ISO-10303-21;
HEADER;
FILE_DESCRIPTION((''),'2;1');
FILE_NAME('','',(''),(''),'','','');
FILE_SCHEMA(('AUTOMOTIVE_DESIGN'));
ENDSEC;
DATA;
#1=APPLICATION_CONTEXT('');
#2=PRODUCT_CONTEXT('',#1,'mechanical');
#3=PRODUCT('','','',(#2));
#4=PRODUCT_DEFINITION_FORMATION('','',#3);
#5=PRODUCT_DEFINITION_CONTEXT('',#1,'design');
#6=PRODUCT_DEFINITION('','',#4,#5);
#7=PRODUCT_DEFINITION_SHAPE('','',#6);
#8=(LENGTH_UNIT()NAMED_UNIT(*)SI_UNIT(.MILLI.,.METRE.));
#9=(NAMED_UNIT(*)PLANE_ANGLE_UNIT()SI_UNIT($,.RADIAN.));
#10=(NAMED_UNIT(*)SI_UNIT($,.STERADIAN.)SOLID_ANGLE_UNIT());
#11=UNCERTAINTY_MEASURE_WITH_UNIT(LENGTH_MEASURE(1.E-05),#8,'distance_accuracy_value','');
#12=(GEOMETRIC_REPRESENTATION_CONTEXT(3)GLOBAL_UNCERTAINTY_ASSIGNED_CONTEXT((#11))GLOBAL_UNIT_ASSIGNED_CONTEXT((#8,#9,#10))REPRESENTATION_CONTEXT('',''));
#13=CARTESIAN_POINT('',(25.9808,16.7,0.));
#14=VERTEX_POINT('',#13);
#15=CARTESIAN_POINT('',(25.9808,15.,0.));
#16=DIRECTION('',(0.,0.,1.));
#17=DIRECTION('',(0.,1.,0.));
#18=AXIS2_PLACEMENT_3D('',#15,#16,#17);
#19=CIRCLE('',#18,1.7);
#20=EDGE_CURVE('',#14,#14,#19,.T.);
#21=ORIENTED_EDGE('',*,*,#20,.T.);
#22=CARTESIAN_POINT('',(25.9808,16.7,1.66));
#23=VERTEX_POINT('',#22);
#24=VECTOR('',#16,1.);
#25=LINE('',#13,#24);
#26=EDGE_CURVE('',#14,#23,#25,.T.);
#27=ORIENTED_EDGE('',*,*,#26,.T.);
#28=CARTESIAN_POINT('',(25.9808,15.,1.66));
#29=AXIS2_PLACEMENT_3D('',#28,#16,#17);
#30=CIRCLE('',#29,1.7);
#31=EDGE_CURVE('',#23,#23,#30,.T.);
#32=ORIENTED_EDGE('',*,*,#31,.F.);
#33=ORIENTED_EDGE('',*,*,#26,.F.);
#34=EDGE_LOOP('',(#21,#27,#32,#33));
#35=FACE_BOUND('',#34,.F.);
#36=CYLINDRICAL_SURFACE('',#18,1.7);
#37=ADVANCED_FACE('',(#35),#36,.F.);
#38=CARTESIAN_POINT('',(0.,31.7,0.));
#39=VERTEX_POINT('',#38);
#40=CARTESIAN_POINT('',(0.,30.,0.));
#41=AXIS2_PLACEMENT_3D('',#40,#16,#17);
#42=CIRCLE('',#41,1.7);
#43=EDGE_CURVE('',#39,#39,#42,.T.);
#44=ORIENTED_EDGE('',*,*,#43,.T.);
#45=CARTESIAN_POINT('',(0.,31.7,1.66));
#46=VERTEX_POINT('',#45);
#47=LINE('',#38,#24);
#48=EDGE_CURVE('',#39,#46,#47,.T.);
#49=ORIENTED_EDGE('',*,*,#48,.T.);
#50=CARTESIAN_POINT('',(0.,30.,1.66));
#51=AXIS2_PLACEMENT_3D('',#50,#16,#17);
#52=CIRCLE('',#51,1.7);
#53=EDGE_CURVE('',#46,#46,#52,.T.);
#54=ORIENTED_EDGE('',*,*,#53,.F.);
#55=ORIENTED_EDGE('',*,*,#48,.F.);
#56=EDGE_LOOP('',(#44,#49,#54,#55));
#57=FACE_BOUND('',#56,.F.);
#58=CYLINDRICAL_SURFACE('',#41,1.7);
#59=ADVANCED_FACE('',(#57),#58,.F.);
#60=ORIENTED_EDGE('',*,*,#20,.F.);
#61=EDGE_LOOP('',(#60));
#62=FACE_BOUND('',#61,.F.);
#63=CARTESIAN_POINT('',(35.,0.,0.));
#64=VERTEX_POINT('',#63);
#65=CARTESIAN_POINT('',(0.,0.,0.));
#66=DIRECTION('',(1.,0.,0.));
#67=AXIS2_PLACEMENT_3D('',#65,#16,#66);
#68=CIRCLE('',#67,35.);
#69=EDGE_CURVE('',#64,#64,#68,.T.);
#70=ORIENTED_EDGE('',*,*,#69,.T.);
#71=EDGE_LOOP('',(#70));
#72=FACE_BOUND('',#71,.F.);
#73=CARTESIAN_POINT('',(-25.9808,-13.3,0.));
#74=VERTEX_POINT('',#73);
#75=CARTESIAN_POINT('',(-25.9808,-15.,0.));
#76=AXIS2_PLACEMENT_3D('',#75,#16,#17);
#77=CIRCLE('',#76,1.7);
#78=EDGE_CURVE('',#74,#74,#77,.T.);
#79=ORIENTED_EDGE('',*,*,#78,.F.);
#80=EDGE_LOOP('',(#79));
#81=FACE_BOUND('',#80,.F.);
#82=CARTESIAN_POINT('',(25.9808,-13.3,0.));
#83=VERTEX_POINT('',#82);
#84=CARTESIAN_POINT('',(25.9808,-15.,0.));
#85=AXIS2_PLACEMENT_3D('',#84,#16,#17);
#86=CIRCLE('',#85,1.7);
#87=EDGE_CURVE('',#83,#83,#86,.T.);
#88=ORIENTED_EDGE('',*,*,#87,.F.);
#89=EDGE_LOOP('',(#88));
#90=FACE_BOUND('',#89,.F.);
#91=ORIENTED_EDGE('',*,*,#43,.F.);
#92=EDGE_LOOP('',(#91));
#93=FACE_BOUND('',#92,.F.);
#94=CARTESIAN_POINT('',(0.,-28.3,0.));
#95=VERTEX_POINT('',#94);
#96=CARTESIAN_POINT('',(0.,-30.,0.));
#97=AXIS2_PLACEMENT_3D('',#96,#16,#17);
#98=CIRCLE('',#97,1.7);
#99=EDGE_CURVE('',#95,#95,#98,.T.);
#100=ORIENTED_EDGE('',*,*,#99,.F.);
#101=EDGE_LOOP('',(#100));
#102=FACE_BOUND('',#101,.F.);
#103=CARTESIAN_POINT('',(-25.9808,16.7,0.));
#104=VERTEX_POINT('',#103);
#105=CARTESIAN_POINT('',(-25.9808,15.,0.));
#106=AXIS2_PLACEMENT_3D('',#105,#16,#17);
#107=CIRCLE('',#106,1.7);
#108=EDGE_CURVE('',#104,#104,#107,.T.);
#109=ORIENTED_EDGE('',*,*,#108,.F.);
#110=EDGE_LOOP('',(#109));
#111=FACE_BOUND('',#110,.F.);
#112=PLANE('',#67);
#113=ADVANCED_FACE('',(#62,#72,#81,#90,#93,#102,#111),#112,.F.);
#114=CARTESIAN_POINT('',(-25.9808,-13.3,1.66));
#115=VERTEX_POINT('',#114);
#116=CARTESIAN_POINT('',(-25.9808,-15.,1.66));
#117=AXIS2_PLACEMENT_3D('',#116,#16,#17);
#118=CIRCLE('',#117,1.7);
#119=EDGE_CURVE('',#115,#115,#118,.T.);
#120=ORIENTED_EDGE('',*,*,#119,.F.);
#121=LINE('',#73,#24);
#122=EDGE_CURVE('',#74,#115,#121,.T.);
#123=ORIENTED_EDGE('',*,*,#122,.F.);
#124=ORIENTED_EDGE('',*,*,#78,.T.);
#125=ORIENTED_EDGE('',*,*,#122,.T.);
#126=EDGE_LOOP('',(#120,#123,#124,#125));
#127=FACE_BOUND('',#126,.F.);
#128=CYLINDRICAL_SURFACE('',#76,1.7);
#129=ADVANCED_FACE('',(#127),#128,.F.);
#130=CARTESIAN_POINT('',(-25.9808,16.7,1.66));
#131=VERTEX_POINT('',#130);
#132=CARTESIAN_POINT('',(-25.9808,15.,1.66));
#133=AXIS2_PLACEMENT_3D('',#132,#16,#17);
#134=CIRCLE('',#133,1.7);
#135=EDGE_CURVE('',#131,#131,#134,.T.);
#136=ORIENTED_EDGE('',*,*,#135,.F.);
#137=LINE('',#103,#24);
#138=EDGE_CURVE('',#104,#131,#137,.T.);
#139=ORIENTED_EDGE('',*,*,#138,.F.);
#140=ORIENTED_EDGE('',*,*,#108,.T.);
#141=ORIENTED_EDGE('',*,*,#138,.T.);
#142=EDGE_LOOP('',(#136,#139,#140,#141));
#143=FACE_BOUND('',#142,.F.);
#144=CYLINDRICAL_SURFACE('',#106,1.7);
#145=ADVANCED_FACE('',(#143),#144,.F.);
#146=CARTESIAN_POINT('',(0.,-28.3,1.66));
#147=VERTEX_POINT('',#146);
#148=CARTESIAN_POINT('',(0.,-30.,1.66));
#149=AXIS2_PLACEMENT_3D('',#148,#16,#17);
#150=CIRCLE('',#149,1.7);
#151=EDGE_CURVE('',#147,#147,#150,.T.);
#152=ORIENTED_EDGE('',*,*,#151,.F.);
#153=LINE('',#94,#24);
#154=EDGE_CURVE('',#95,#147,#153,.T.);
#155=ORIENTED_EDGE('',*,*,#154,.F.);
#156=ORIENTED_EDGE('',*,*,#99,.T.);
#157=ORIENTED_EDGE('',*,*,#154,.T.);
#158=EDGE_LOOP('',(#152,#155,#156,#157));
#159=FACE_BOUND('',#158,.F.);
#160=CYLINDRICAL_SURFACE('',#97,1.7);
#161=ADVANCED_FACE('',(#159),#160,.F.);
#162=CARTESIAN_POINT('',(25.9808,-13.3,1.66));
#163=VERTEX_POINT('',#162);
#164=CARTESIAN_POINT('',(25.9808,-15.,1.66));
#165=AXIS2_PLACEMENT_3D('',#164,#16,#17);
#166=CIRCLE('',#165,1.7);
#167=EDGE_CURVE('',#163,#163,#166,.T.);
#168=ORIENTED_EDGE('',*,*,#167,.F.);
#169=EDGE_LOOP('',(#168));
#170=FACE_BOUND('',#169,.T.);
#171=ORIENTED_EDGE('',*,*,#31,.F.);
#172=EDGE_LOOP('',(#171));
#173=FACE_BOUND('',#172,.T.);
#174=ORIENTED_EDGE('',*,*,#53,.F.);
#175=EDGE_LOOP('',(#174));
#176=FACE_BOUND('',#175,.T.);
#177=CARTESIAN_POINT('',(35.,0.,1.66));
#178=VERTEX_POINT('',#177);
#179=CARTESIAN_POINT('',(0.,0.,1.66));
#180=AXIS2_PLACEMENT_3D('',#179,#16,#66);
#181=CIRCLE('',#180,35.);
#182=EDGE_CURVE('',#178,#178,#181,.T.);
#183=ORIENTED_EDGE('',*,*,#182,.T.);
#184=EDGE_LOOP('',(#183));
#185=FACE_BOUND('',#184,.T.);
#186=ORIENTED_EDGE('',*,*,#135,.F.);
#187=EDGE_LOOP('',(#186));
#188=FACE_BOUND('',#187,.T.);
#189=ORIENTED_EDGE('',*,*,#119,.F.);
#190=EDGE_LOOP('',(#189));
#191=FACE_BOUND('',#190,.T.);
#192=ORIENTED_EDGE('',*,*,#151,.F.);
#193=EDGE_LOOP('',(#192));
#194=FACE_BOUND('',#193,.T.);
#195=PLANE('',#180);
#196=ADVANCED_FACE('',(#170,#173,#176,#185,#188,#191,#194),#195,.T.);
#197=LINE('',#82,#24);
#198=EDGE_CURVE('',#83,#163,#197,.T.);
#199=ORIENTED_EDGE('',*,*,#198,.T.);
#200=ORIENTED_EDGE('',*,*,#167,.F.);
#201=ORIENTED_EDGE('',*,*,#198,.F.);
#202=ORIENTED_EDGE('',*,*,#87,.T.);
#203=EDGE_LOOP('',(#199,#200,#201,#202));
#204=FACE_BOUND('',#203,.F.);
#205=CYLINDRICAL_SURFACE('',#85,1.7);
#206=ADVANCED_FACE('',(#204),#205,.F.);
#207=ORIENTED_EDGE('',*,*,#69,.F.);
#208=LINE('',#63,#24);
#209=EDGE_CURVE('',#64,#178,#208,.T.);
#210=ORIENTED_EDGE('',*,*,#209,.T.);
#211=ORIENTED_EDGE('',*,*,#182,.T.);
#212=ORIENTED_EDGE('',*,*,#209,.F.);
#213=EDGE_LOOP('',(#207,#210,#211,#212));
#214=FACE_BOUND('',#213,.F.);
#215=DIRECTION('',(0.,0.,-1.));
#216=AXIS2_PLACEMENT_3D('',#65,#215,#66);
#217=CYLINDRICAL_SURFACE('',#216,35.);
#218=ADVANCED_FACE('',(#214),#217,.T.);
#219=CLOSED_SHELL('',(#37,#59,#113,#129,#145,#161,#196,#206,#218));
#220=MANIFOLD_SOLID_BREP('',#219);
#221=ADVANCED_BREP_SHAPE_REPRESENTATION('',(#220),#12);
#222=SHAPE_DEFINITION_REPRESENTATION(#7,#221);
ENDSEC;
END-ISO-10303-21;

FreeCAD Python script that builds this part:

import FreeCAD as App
import Part
import Sketcher

V = App.Vector
Q = App.Units.Quantity

doc = App.newDocument("Part")
body = doc.addObject("PartDesign::Body", "Body")

# Sketch on XY plane
sketch1 = body.newObject("Sketcher::SketchObject", "Sketch")
sketch1.AttachmentSupport = (doc.getObject("XY_Plane"), [""])
sketch1.MapMode = "FlatFace"
sketch1.addGeometry(Part.Circle(V(0, 0, 0), V(0, 0, 1), 35), False)
sketch1.addConstraint([
    Sketcher.Constraint("Coincident", 0, 3, -1, 1),
    Sketcher.Constraint("Diameter", 0, Q("70 mm")),
])
pad1 = body.newObject("PartDesign::Pad", "Pad")
pad1.Profile = sketch1
pad1.Length = 1.66

# Sketch on XY plane
sketch2 = body.newObject("Sketcher::SketchObject", "Sketch001")
sketch2.AttachmentSupport = (doc.getObject("XY_Plane"), [""])
sketch2.MapMode = "FlatFace"
sketch2.addGeometry([
    Part.Circle(V(0, 30, 0), V(0, 0, 1), 1.7),  # 0
    Part.Circle(V(26, 15, 0), V(0, 0, 1), 1.7),  # 1
    Part.Circle(V(0, -30, 0), V(0, 0, 1), 1.7),  # 2
    Part.Circle(V(-26, -15, 0), V(0, 0, 1), 1.7),  # 3
    Part.Circle(V(-26, 15, 0), V(0, 0, 1), 1.7),  # 4
    Part.Circle(V(26, -15, 0), V(0, 0, 1), 1.7),  # 5
], False)
sketch2.addConstraint([
    Sketcher.Constraint("Equal", 0, 1),
    Sketcher.Constraint("Equal", 1, 2),
    Sketcher.Constraint("Equal", 2, 3),
    Sketcher.Constraint("Equal", 3, 4),
    Sketcher.Constraint("Equal", 4, 5),
    Sketcher.Constraint("Symmetric", 0, 3, 2, 3, -1, 1),
    Sketcher.Constraint("Symmetric", 1, 3, 3, 3, -1, 1),
    Sketcher.Constraint("Symmetric", 4, 3, 5, 3, -1, 1),
    Sketcher.Constraint("Symmetric", 1, 3, 4, 3, -2),
    Sketcher.Constraint("PointOnObject", 0, 3, -2),
    Sketcher.Constraint("Diameter", 0, Q("3.4 mm")),
    Sketcher.Constraint("DistanceY", -1, 1, 0, 3, Q("30 mm")),
    Sketcher.Constraint("DistanceY", -1, 1, 1, 3, Q("15 mm")),
    Sketcher.Constraint("DistanceX", -1, 1, 1, 3, Q("25.9808 mm")),
])
doc.recompute()
hole = body.newObject("PartDesign::Hole", "Hole")
hole.Profile = sketch2
hole.ThreadType = "None"
hole.Diameter = 3.4
hole.DepthType = "Dimension"
hole.Depth = 8
hole.DrillPoint = "Angled"
hole.DrillPointAngle = 118
hole.Reversed = True

doc.recompute()
